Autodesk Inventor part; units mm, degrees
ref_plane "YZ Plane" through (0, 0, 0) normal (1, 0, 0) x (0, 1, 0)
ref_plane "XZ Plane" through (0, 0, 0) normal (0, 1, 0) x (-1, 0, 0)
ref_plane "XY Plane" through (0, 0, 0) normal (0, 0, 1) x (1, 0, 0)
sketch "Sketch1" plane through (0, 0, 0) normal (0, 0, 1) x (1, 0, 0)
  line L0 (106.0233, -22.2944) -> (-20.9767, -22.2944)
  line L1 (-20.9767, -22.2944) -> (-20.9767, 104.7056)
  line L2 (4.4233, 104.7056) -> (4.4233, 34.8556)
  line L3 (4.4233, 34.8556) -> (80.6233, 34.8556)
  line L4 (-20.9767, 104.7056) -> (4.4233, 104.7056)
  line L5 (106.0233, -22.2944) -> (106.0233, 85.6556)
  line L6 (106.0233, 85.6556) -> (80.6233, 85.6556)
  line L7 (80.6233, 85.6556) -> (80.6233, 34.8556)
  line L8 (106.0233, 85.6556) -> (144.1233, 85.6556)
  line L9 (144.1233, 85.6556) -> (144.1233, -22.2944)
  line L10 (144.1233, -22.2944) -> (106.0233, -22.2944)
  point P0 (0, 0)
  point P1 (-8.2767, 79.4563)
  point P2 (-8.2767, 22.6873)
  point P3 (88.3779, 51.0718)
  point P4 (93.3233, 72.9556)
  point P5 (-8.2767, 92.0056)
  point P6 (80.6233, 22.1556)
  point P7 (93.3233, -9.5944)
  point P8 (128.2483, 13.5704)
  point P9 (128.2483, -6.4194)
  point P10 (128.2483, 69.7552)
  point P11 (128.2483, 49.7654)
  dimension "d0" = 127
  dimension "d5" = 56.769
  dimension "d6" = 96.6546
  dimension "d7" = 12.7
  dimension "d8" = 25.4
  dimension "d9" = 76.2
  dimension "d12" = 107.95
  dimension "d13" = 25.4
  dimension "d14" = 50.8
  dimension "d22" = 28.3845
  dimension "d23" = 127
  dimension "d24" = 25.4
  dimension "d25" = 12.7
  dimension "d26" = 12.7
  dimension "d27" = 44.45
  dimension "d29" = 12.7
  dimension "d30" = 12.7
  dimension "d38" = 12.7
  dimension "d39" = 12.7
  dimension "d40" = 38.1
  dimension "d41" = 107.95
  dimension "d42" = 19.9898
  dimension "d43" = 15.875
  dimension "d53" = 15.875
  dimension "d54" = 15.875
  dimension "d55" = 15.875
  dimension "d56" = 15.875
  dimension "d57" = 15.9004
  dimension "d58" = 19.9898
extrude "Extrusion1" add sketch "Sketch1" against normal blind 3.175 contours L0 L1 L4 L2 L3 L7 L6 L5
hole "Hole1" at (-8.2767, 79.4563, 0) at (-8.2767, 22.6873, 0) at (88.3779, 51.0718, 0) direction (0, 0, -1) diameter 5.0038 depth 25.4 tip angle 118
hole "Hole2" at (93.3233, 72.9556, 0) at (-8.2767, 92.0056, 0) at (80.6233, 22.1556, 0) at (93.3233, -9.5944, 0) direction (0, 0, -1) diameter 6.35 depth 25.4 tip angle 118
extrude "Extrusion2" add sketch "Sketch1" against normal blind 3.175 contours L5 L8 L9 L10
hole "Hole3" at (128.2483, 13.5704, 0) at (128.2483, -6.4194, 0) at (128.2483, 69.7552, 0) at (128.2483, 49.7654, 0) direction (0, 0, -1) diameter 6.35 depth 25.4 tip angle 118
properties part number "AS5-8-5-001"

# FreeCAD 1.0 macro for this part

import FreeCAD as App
import Part
import Sketcher

V = App.Vector
Q = App.Units.Quantity

doc = App.newDocument("Part")
body = doc.addObject("PartDesign::Body", "Body")

sketch1 = body.newObject("Sketcher::SketchObject", "Sketch")
sketch1.AttachmentSupport = (doc.getObject("XY_Plane"), [""])
sketch1.MapMode = "FlatFace"
sketch1.addGeometry([
    Part.LineSegment(V(-20.9767, -22.2944, 0), V(106.0233, -22.2944, 0)),
    Part.LineSegment(V(106.0233, -22.2944, 0), V(106.0233, 85.6556, 0)),
    Part.LineSegment(V(106.0233, 85.6556, 0), V(80.6233, 85.6556, 0)),
    Part.LineSegment(V(80.6233, 85.6556, 0), V(80.6233, 34.8556, 0)),
    Part.LineSegment(V(80.6233, 34.8556, 0), V(4.4233, 34.8556, 0)),
    Part.LineSegment(V(4.4233, 34.8556, 0), V(4.4233, 104.7056, 0)),
    Part.LineSegment(V(4.4233, 104.7056, 0), V(-20.9767, 104.7056, 0)),
    Part.LineSegment(V(-20.9767, 104.7056, 0), V(-20.9767, -22.2944, 0)),
], False)
sketch1.addConstraint([
    Sketcher.Constraint("Coincident", 0, 2, 1, 1),
    Sketcher.Constraint("Coincident", 1, 2, 2, 1),
    Sketcher.Constraint("Coincident", 2, 2, 3, 1),
    Sketcher.Constraint("Coincident", 3, 2, 4, 1),
    Sketcher.Constraint("Coincident", 4, 2, 5, 1),
    Sketcher.Constraint("Coincident", 5, 2, 6, 1),
    Sketcher.Constraint("Coincident", 6, 2, 7, 1),
    Sketcher.Constraint("Coincident", 7, 2, 0, 1),
    Sketcher.Constraint("Horizontal", 0),
    Sketcher.Constraint("Vertical", 1),
    Sketcher.Constraint("Horizontal", 2),
    Sketcher.Constraint("Vertical", 3),
    Sketcher.Constraint("Horizontal", 4),
    Sketcher.Constraint("Vertical", 5),
    Sketcher.Constraint("Horizontal", 6),
    Sketcher.Constraint("Vertical", 7),
    Sketcher.Constraint("Equal", 2, 6),
    Sketcher.Constraint("Equal", 0, 7),
    Sketcher.Constraint("DistanceX", 0, 1, 0, 2, Q("5 in")),
    Sketcher.Constraint("DistanceX", 2, 2, 2, 1, Q("1 in")),
    Sketcher.Constraint("DistanceY", 3, 2, 3, 1, Q("2 in")),
    Sketcher.Constraint("DistanceY", 1, 1, 1, 2, Q("4.25 in")),
    Sketcher.Constraint("DistanceX", -1, 1, 0, 2, 106.0233),
    Sketcher.Constraint("DistanceY", 0, 2, -1, 1, 22.2944),
])
pad1 = body.newObject("PartDesign::Pad", "Pad")
pad1.Profile = sketch1
pad1.Length = Q("0.125 in")
pad1.Reversed = True

sketch2 = body.newObject("Sketcher::SketchObject", "Sketch001")
sketch2.AttachmentSupport = (doc.getObject("XY_Plane"), [""])
sketch2.MapMode = "FlatFace"
sketch2.addGeometry([
    Part.Circle(V(-8.2767, 79.4563, 0), V(0, 0, 1), 2.5019),
    Part.Circle(V(-8.2767, 22.6873, 0), V(0, 0, 1), 2.5019),
    Part.Circle(V(88.3779, 51.0718, 0), V(0, 0, 1), 2.5019),
], False)
sketch2.addConstraint([
    Sketcher.Constraint("Equal", 0, 1),
    Sketcher.Constraint("Equal", 1, 2),
    Sketcher.Constraint("Vertical", 0, 3, 1, 3),
    Sketcher.Constraint("Diameter", 0, Q("0.197 in")),
    Sketcher.Constraint("DistanceY", 1, 3, 0, 3, Q("2.235 in")),
    Sketcher.Constraint("DistanceY", -1, 1, 0, 3, Q("3.1282 in")),
    Sketcher.Constraint("DistanceY", -1, 1, 2, 3, Q("2.0107 in")),
    Sketcher.Constraint("DistanceX", 0, 3, 2, 3, Q("3.8053 in")),
    Sketcher.Constraint("DistanceX", 0, 3, -1, 1, 8.2767),
])
doc.recompute()
hole = body.newObject("PartDesign::Hole", "Hole")
hole.Profile = sketch2
hole.ThreadType = "None"
hole.Diameter = Q("0.197 in")
hole.DepthType = "Dimension"
hole.Depth = Q("1 in")
hole.DrillPoint = "Angled"
hole.DrillPointAngle = 118

sketch3 = body.newObject("Sketcher::SketchObject", "Sketch002")
sketch3.AttachmentSupport = (doc.getObject("XY_Plane"), [""])
sketch3.MapMode = "FlatFace"
sketch3.addGeometry([
    Part.Circle(V(93.3233, 72.9556, 0), V(0, 0, 1), 3.175),
    Part.Circle(V(-8.2767, 92.0056, 0), V(0, 0, 1), 3.175),
    Part.Circle(V(80.6233, 22.1556, 0), V(0, 0, 1), 3.175),
    Part.Circle(V(93.3233, -9.5944, 0), V(0, 0, 1), 3.175),
], False)
sketch3.addConstraint([
    Sketcher.Constraint("Equal", 0, 1),
    Sketcher.Constraint("Equal", 1, 2),
    Sketcher.Constraint("Equal", 2, 3),
    Sketcher.Constraint("Vertical", 0, 3, 3, 3),
    Sketcher.Constraint("Diameter", 0, Q("0.25 in")),
    Sketcher.Constraint("DistanceX", 1, 3, 0, 3, Q("4 in")),
    Sketcher.Constraint("DistanceY", 2, 3, 0, 3, Q("2 in")),
    Sketcher.Constraint("DistanceY", 3, 3, 1, 3, Q("4 in")),
    Sketcher.Constraint("DistanceX", 2, 3, 0, 3, Q("0.5 in")),
    Sketcher.Constraint("DistanceY", 0, 3, 1, 3, Q("0.75 in")),
    Sketcher.Constraint("DistanceX", -1, 1, 0, 3, 93.3233),
    Sketcher.Constraint("DistanceY", -1, 1, 0, 3, 72.9556),
])
doc.recompute()
hole2 = body.newObject("PartDesign::Hole", "Hole001")
hole2.Profile = sketch3
hole2.ThreadType = "None"
hole2.Diameter = Q("0.25 in")
hole2.DepthType = "Dimension"
hole2.Depth = Q("1 in")
hole2.DrillPoint = "Angled"
hole2.DrillPointAngle = 118

sketch4 = body.newObject("Sketcher::SketchObject", "Sketch003")
sketch4.AttachmentSupport = (doc.getObject("XY_Plane"), [""])
sketch4.MapMode = "FlatFace"
sketch4.addGeometry([
    Part.LineSegment(V(106.0233, 85.6556, 0), V(106.0233, -22.2944, 0)),
    Part.LineSegment(V(106.0233, -22.2944, 0), V(144.1233, -22.2944, 0)),
    Part.LineSegment(V(144.1233, -22.2944, 0), V(144.1233, 85.6556, 0)),
    Part.LineSegment(V(144.1233, 85.6556, 0), V(106.0233, 85.6556, 0)),
], False)
sketch4.addConstraint([
    Sketcher.Constraint("Coincident", 0, 2, 1, 1),
    Sketcher.Constraint("Coincident", 1, 2, 2, 1),
    Sketcher.Constraint("Coincident", 2, 2, 3, 1),
    Sketcher.Constraint("Coincident", 3, 2, 0, 1),
    Sketcher.Constraint("Vertical", 0),
    Sketcher.Constraint("Horizontal", 1),
    Sketcher.Constraint("Vertical", 2),
    Sketcher.Constraint("Horizontal", 3),
    Sketcher.Constraint("DistanceX", 1, 1, 1, 2, Q("1.5 in")),
    Sketcher.Constraint("DistanceY", 0, 2, 0, 1, Q("4.25 in")),
    Sketcher.Constraint("DistanceX", -1, 1, 0, 2, 106.0233),
    Sketcher.Constraint("DistanceY", 0, 2, -1, 1, 22.2944),
])
pad2 = body.newObject("PartDesign::Pad", "Pad001")
pad2.Profile = sketch4
pad2.Length = Q("0.125 in")
pad2.Reversed = True

sketch5 = body.newObject("Sketcher::SketchObject", "Sketch004")
sketch5.AttachmentSupport = (doc.getObject("XY_Plane"), [""])
sketch5.MapMode = "FlatFace"
sketch5.addGeometry([
    Part.Circle(V(128.2483, 13.5704, 0), V(0, 0, 1), 3.175),
    Part.Circle(V(128.2483, -6.4194, 0), V(0, 0, 1), 3.175),
    Part.Circle(V(128.2483, 69.7552, 0), V(0, 0, 1), 3.175),
    Part.Circle(V(128.2483, 49.7654, 0), V(0, 0, 1), 3.175),
], False)
sketch5.addConstraint([
    Sketcher.Constraint("Equal", 0, 1),
    Sketcher.Constraint("Equal", 1, 2),
    Sketcher.Constraint("Equal", 2, 3),
    Sketcher.Constraint("Vertical", 0, 3, 1, 3),
    Sketcher.Constraint("Vertical", 1, 3, 2, 3),
    Sketcher.Constraint("Vertical", 2, 3, 3, 3),
    Sketcher.Constraint("Diameter", 0, Q("0.25 in")),
    Sketcher.Constraint("DistanceY", 1, 3, 0, 3, Q("0.787 in")),
    Sketcher.Constraint("DistanceY", 0, 3, 2, 3, Q("2.212 in")),
    Sketcher.Constraint("DistanceY", 3, 3, 2, 3, Q("0.787 in")),
    Sketcher.Constraint("DistanceX", -1, 1, 0, 3, 128.2483),
    Sketcher.Constraint("DistanceY", -1, 1, 0, 3, 13.5704),
])
doc.recompute()
hole3 = body.newObject("PartDesign::Hole", "Hole002")
hole3.Profile = sketch5
hole3.ThreadType = "None"
hole3.Diameter = Q("0.25 in")
hole3.DepthType = "Dimension"
hole3.Depth = Q("1 in")
hole3.DrillPoint = "Angled"
hole3.DrillPointAngle = 118

doc.recompute()
